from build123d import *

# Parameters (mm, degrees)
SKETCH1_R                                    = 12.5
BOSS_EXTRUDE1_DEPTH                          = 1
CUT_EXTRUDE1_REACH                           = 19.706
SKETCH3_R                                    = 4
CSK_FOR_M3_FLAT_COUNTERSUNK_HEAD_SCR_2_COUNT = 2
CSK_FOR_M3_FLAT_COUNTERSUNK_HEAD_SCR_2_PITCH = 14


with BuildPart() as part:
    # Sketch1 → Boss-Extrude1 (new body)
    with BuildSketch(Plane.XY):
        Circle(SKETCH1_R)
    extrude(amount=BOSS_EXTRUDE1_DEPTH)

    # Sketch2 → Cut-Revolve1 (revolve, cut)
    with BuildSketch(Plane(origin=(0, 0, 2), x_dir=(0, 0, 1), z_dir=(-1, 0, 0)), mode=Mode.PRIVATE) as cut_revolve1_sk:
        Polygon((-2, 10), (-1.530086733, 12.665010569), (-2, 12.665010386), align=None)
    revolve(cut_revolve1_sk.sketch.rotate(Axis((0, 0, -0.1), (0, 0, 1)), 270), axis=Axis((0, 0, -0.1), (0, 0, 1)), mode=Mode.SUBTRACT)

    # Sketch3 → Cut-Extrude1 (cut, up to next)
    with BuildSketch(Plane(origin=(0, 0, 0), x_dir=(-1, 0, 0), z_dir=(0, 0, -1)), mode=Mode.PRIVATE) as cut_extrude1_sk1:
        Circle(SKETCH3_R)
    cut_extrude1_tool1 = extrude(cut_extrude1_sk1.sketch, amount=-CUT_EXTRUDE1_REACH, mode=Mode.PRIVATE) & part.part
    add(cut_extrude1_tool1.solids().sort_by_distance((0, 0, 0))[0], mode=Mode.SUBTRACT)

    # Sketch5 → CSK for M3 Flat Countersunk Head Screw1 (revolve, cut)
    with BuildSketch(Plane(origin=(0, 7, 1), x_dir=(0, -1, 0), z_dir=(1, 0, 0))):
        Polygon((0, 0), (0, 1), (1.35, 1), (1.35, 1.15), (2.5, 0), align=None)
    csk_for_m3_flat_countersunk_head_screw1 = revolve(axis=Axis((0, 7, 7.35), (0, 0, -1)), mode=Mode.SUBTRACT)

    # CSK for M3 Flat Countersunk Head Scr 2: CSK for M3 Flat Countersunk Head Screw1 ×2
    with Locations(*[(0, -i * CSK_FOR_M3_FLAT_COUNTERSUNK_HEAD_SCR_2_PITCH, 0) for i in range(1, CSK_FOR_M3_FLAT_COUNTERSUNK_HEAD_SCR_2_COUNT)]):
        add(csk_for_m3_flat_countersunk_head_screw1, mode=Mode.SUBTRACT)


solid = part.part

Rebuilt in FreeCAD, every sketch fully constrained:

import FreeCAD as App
import Part
import Sketcher
Q = App.Units.Quantity

doc = App.newDocument("Part")
body = doc.addObject("PartDesign::Body", "Body")

# Sketch on XY plane
sketch1 = body.newObject("Sketcher::SketchObject", "Sketch")
sketch1.AttachmentSupport = (doc.getObject("XY_Plane"), [""])
sketch1.MapMode = "FlatFace"
sketch1.addGeometry(Part.Circle(App.Vector(0, 0, 0), App.Vector(0, 0, 1), 12), False)
sketch1.addConstraint(Sketcher.Constraint("Coincident", 0, 3, -1, 1))
sketch1.addConstraint(Sketcher.Constraint("Diameter", 0, Q("25 mm")))
pad1 = body.newObject("PartDesign::Pad", "Pad")
pad1.Profile = sketch1
pad1.Length = 1

# Sketch on YZ plane
sketch2 = body.newObject("Sketcher::SketchObject", "Sketch001")
sketch2.AttachmentSupport = (doc.getObject("YZ_Plane"), [""])
sketch2.MapMode = "FlatFace"
sketch2.addGeometry(Part.LineSegment(App.Vector(10, 0, 0), App.Vector(12.67, 0.47, 0)), False)
sketch2.addGeometry(Part.LineSegment(App.Vector(12.67, 0.47, 0), App.Vector(12.67, 0, 0)), False)
sketch2.addGeometry(Part.LineSegment(App.Vector(12.67, 0, 0), App.Vector(10, 0, 0)), False)
sketch2.addConstraint(Sketcher.Constraint("Coincident", 0, 2, 1, 1))
sketch2.addConstraint(Sketcher.Constraint("Coincident", 1, 2, 2, 1))
sketch2.addConstraint(Sketcher.Constraint("Coincident", 2, 2, 0, 1))
sketch2.addConstraint(Sketcher.Constraint("Vertical", 1))
sketch2.addConstraint(Sketcher.Constraint("Horizontal", 2))
sketch2.addConstraint(Sketcher.Constraint("PointOnObject", 1, 2, -1))
sketch2.addConstraint(Sketcher.Constraint("Angle", 0, Q("10 deg")))
sketch2.addConstraint(Sketcher.Constraint("DistanceX", -1, 1, 2, 2, Q("10 mm")))
sketch2.addConstraint(Sketcher.Constraint("DistanceX", 2, 2, 2, 1, Q("2.66501 mm")))
groove = body.newObject("PartDesign::Groove", "Groove")
groove.Profile = sketch2
groove.ReferenceAxis = (sketch2, ["V_Axis"])
groove.Angle = 360

# Sketch on XY plane
sketch3 = body.newObject("Sketcher::SketchObject", "Sketch002")
sketch3.AttachmentSupport = (doc.getObject("XY_Plane"), [""])
sketch3.MapMode = "FlatFace"
sketch3.addGeometry(Part.Circle(App.Vector(0, 0, 0), App.Vector(0, 0, 1), 4), False)
sketch3.addConstraint(Sketcher.Constraint("Coincident", 0, 3, -1, 1))
sketch3.addConstraint(Sketcher.Constraint("Diameter", 0, Q("8 mm")))
pocket1 = body.newObject("PartDesign::Pocket", "Pocket")
pocket1.Profile = sketch3
pocket1.Type = "UpToFirst"
pocket1.Reversed = True

# Sketch on YZ plane
sketch4 = body.newObject("Sketcher::SketchObject", "Sketch003")
sketch4.AttachmentSupport = (doc.getObject("YZ_Plane"), [""])
sketch4.MapMode = "FlatFace"
sketch4.addGeometry(Part.LineSegment(App.Vector(7, 0, 0), App.Vector(7, 1, 0)), False)
sketch4.addGeometry(Part.LineSegment(App.Vector(7, 1, 0), App.Vector(4.5, 1, 0)), False)
sketch4.addGeometry(Part.LineSegment(App.Vector(4.5, 1, 0), App.Vector(5.65, -0.15, 0)), False)
sketch4.addGeometry(Part.LineSegment(App.Vector(5.65, -0.15, 0), App.Vector(5.65, 0, 0)), False)
sketch4.addGeometry(Part.LineSegment(App.Vector(5.65, 0, 0), App.Vector(7, 0, 0)), False)
sketch4.addGeometry(Part.LineSegment(App.Vector(7, 1, 0), App.Vector(7, -0.15, 0)), True)  # axis
sketch4.addConstraint(Sketcher.Constraint("Coincident", 0, 2, 1, 1))
sketch4.addConstraint(Sketcher.Constraint("Coincident", 1, 2, 2, 1))
sketch4.addConstraint(Sketcher.Constraint("Coincident", 2, 2, 3, 1))
sketch4.addConstraint(Sketcher.Constraint("Coincident", 3, 2, 4, 1))
sketch4.addConstraint(Sketcher.Constraint("Coincident", 4, 2, 0, 1))
sketch4.addConstraint(Sketcher.Constraint("Vertical", 0))
sketch4.addConstraint(Sketcher.Constraint("Horizontal", 1))
sketch4.addConstraint(Sketcher.Constraint("Vertical", 3))
sketch4.addConstraint(Sketcher.Constraint("Horizontal", 4))
sketch4.addConstraint(Sketcher.Constraint("Vertical", 5))
sketch4.addConstraint(Sketcher.Constraint("Coincident", 5, 1, 0, 2))
sketch4.addConstraint(Sketcher.Constraint("PointOnObject", 3, 2, -1))
sketch4.addConstraint(Sketcher.Constraint("Horizontal", 2, 2, 5, 2))
sketch4.addConstraint(Sketcher.Constraint("DistanceY", 0, 1, 0, 2, Q("1 mm")))
sketch4.addConstraint(Sketcher.Constraint("Angle", 2, Q("-45 deg")))
sketch4.addConstraint(Sketcher.Constraint("DistanceX", 1, 2, 1, 1, Q("2.5 mm")))
sketch4.addConstraint(Sketcher.Constraint("DistanceX", -1, 1, 0, 2, Q("7 mm")))
sketch4.addConstraint(Sketcher.Constraint("DistanceX", 4, 1, 4, 2, Q("1.35 mm")))
groove2 = body.newObject("PartDesign::Groove", "Groove001")
groove2.Profile = sketch4
groove2.ReferenceAxis = (sketch4, ["Axis0"])
groove2.Angle = 360
doc.recompute()

linearpattern = body.newObject("PartDesign::LinearPattern", "LinearPattern")
linearpattern.Originals = [groove2]
linearpattern.Direction = (doc.getObject("Y_Axis"), [""])
linearpattern.Mode = "offset"
linearpattern.Offset = 14
linearpattern.Occurrences = 2
linearpattern.Reversed = True
body.Tip = linearpattern

doc.recompute()
